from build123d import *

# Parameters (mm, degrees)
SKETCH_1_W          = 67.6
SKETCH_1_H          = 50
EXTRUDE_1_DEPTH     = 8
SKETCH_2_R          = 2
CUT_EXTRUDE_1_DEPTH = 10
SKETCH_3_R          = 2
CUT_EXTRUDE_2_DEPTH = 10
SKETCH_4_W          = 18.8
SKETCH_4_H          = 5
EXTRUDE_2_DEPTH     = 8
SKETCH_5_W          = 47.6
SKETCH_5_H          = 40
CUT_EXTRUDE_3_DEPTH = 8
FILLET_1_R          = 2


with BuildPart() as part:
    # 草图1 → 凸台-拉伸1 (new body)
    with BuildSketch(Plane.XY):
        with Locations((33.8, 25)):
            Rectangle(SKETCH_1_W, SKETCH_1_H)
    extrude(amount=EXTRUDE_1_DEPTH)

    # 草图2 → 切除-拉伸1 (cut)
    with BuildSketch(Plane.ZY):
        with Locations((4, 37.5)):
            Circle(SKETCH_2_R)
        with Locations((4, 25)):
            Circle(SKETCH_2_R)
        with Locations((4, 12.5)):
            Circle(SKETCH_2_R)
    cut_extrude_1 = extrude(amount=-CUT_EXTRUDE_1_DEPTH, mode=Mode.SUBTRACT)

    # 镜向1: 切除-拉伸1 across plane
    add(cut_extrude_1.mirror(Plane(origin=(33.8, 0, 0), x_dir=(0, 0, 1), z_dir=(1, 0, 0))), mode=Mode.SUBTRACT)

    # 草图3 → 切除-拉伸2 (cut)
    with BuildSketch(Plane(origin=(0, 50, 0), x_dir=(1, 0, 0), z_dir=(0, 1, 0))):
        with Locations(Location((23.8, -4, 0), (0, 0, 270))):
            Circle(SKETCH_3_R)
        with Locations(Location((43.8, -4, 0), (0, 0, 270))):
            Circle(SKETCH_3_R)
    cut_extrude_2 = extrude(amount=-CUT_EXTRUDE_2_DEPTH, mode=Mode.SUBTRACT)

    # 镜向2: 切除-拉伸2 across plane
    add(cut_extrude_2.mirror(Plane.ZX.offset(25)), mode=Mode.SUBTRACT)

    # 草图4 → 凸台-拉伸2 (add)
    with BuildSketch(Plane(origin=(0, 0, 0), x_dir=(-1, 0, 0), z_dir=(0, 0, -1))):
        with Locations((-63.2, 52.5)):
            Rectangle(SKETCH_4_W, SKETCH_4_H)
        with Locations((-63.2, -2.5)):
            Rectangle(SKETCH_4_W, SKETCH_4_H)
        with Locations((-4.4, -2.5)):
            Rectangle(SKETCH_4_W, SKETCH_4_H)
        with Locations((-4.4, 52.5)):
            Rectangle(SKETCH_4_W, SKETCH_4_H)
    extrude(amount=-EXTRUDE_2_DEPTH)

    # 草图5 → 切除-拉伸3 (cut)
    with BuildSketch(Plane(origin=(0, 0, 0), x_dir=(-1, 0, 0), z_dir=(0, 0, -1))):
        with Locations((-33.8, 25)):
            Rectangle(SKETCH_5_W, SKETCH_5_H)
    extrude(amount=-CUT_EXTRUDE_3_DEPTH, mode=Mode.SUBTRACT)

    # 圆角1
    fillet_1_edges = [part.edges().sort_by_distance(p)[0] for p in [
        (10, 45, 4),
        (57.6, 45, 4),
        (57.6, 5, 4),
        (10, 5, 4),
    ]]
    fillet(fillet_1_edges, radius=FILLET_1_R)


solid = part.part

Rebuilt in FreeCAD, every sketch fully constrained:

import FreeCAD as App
import Part
import Sketcher
Q = App.Units.Quantity


def edges_at(feature, points):
    """Names of the edges that pass closest to the given points."""
    edges = feature.Shape.Edges
    near = lambda p: min(range(len(edges)), key=lambda i: edges[i].distToShape(Part.Vertex(*p))[0])
    return sorted({f"Edge{near(p) + 1}" for p in points})

doc = App.newDocument("Part")
body = doc.addObject("PartDesign::Body", "Body")

sketch1 = doc.addObject("Sketcher::SketchObject", "Sketch")
body.addObject(sketch1)
sketch1.AttachmentSupport = (doc.XY_Plane, [""])
sketch1.MapMode = "FlatFace"
sketch1.addGeometry(Part.LineSegment(App.Vector(0, 50, 0), App.Vector(0, 0, 0)), False)
sketch1.addGeometry(Part.LineSegment(App.Vector(0, 0, 0), App.Vector(68, 0, 0)), False)
sketch1.addGeometry(Part.LineSegment(App.Vector(68, 0, 0), App.Vector(68, 50, 0)), False)
sketch1.addGeometry(Part.LineSegment(App.Vector(68, 50, 0), App.Vector(0, 50, 0)), False)
sketch1.addConstraint(Sketcher.Constraint("Coincident", 0, 2, 1, 1))
sketch1.addConstraint(Sketcher.Constraint("Coincident", 1, 2, 2, 1))
sketch1.addConstraint(Sketcher.Constraint("Coincident", 2, 2, 3, 1))
sketch1.addConstraint(Sketcher.Constraint("Coincident", 3, 2, 0, 1))
sketch1.addConstraint(Sketcher.Constraint("Vertical", 0))
sketch1.addConstraint(Sketcher.Constraint("Horizontal", 1))
sketch1.addConstraint(Sketcher.Constraint("Vertical", 2))
sketch1.addConstraint(Sketcher.Constraint("Horizontal", 3))
sketch1.addConstraint(Sketcher.Constraint("Coincident", 0, 2, -1, 1))
sketch1.addConstraint(Sketcher.Constraint("DistanceY", 0, 2, 0, 1, Q("50 mm")))
sketch1.addConstraint(Sketcher.Constraint("DistanceX", 1, 1, 1, 2, Q("67.6 mm")))
pad1 = doc.addObject("PartDesign::Pad", "Pad")
body.addObject(pad1)
pad1.Profile = sketch1
pad1.Length = 8

sketch2 = doc.addObject("Sketcher::SketchObject", "Sketch001")
body.addObject(sketch2)
sketch2.AttachmentSupport = (doc.YZ_Plane, [""])
sketch2.MapMode = "FlatFace"
sketch2.addGeometry(Part.Circle(App.Vector(37.5, 4, 0), App.Vector(0, 0, 1), 2), False)
sketch2.addGeometry(Part.Circle(App.Vector(25, 4, 0), App.Vector(0, 0, 1), 2), False)
sketch2.addGeometry(Part.Circle(App.Vector(12.5, 4, 0), App.Vector(0, 0, 1), 2), False)
sketch2.addConstraint(Sketcher.Constraint("Equal", 0, 1))
sketch2.addConstraint(Sketcher.Constraint("Equal", 1, 2))
sketch2.addConstraint(Sketcher.Constraint("Horizontal", 0, 3, 1, 3))
sketch2.addConstraint(Sketcher.Constraint("Horizontal", 1, 3, 2, 3))
sketch2.addConstraint(Sketcher.Constraint("Diameter", 0, Q("4 mm")))
sketch2.addConstraint(Sketcher.Constraint("DistanceY", -1, 1, 0, 3, Q("4 mm")))
sketch2.addConstraint(Sketcher.Constraint("DistanceX", -1, 1, 1, 3, Q("25 mm")))
sketch2.addConstraint(Sketcher.Constraint("DistanceX", 2, 3, 0, 3, Q("25 mm")))
sketch2.addConstraint(Sketcher.Constraint("DistanceX", -1, 1, 0, 3, Q("37.5 mm")))
pocket1 = doc.addObject("PartDesign::Pocket", "Pocket")
body.addObject(pocket1)
pocket1.Profile = sketch2
pocket1.Length = 10
pocket1.Reversed = True
doc.recompute()

datumplane = doc.addObject("PartDesign::Plane", "DatumPlane")
body.addObject(datumplane)
datumplane.AttachmentSupport = (doc.YZ_Plane, [""])
datumplane.MapMode = "FlatFace"
datumplane.AttachmentOffset = App.Placement(App.Vector(0, 0, 33.8), App.Rotation())
mirrored = doc.addObject("PartDesign::Mirrored", "Mirrored")
body.addObject(mirrored)
mirrored.Originals = [pocket1]
mirrored.MirrorPlane = (datumplane, [""])
body.Tip = mirrored

sketch3 = doc.addObject("Sketcher::SketchObject", "Sketch002")
body.addObject(sketch3)
sketch3.AttachmentSupport = (doc.XZ_Plane, [""])
sketch3.MapMode = "FlatFace"
sketch3.AttachmentOffset = App.Placement(App.Vector(0, 0, -50), App.Rotation())
sketch3.addGeometry(Part.Circle(App.Vector(23.8, 4, 0), App.Vector(0, 0, 1), 2), False)
sketch3.addGeometry(Part.Circle(App.Vector(43.8, 4, 0), App.Vector(0, 0, 1), 2), False)
sketch3.addConstraint(Sketcher.Constraint("Equal", 0, 1))
sketch3.addConstraint(Sketcher.Constraint("Horizontal", 0, 3, 1, 3))
sketch3.addConstraint(Sketcher.Constraint("Diameter", 0, Q("4 mm")))
sketch3.addConstraint(Sketcher.Constraint("DistanceY", -1, 1, 0, 3, Q("4 mm")))
sketch3.addConstraint(Sketcher.Constraint("DistanceX", 0, 3, 1, 3, Q("20 mm")))
sketch3.addConstraint(Sketcher.Constraint("DistanceX", -1, 1, 0, 3, Q("23.8 mm")))
pocket2 = doc.addObject("PartDesign::Pocket", "Pocket001")
body.addObject(pocket2)
pocket2.Profile = sketch3
pocket2.Length = 10
pocket2.Reversed = True
doc.recompute()

datumplane2 = doc.addObject("PartDesign::Plane", "DatumPlane001")
body.addObject(datumplane2)
datumplane2.AttachmentSupport = (doc.XZ_Plane, [""])
datumplane2.MapMode = "FlatFace"
datumplane2.AttachmentOffset = App.Placement(App.Vector(0, 0, -25), App.Rotation())
mirrored2 = doc.addObject("PartDesign::Mirrored", "Mirrored001")
body.addObject(mirrored2)
mirrored2.Originals = [pocket2]
mirrored2.MirrorPlane = (datumplane2, [""])
body.Tip = mirrored2

sketch4 = doc.addObject("Sketcher::SketchObject", "Sketch003")
body.addObject(sketch4)
sketch4.AttachmentSupport = (doc.XY_Plane, [""])
sketch4.MapMode = "FlatFace"
sketch4.addGeometry(Part.LineSegment(App.Vector(73, 55, 0), App.Vector(73, 50, 0)), False)
sketch4.addGeometry(Part.LineSegment(App.Vector(73, 50, 0), App.Vector(54, 50, 0)), False)
sketch4.addGeometry(Part.LineSegment(App.Vector(54, 50, 0), App.Vector(54, 55, 0)), False)
sketch4.addGeometry(Part.LineSegment(App.Vector(54, 55, 0), App.Vector(73, 55, 0)), False)
sketch4.addGeometry(Part.LineSegment(App.Vector(73, 0, 0), App.Vector(73, -5, 0)), False)
sketch4.addGeometry(Part.LineSegment(App.Vector(73, -5, 0), App.Vector(54, -5, 0)), False)
sketch4.addGeometry(Part.LineSegment(App.Vector(54, -5, 0), App.Vector(54, 0, 0)), False)
sketch4.addGeometry(Part.LineSegment(App.Vector(54, 0, 0), App.Vector(73, 0, 0)), False)
sketch4.addGeometry(Part.LineSegment(App.Vector(14, 0, 0), App.Vector(14, -5, 0)), False)
sketch4.addGeometry(Part.LineSegment(App.Vector(14, -5, 0), App.Vector(-5, -5, 0)), False)
sketch4.addGeometry(Part.LineSegment(App.Vector(-5, -5, 0), App.Vector(-5, 0, 0)), False)
sketch4.addGeometry(Part.LineSegment(App.Vector(-5, 0, 0), App.Vector(14, 0, 0)), False)
sketch4.addGeometry(Part.LineSegment(App.Vector(14, 55, 0), App.Vector(14, 50, 0)), False)
sketch4.addGeometry(Part.LineSegment(App.Vector(14, 50, 0), App.Vector(-5, 50, 0)), False)
sketch4.addGeometry(Part.LineSegment(App.Vector(-5, 50, 0), App.Vector(-5, 55, 0)), False)
sketch4.addGeometry(Part.LineSegment(App.Vector(-5, 55, 0), App.Vector(14, 55, 0)), False)
sketch4.addConstraint(Sketcher.Constraint("Coincident", 0, 2, 1, 1))
sketch4.addConstraint(Sketcher.Constraint("Coincident", 1, 2, 2, 1))
sketch4.addConstraint(Sketcher.Constraint("Coincident", 2, 2, 3, 1))
sketch4.addConstraint(Sketcher.Constraint("Coincident", 3, 2, 0, 1))
sketch4.addConstraint(Sketcher.Constraint("Coincident", 4, 2, 5, 1))
sketch4.addConstraint(Sketcher.Constraint("Coincident", 5, 2, 6, 1))
sketch4.addConstraint(Sketcher.Constraint("Coincident", 6, 2, 7, 1))
sketch4.addConstraint(Sketcher.Constraint("Coincident", 7, 2, 4, 1))
sketch4.addConstraint(Sketcher.Constraint("Coincident", 8, 2, 9, 1))
sketch4.addConstraint(Sketcher.Constraint("Coincident", 9, 2, 10, 1))
sketch4.addConstraint(Sketcher.Constraint("Coincident", 10, 2, 11, 1))
sketch4.addConstraint(Sketcher.Constraint("Coincident", 11, 2, 8, 1))
sketch4.addConstraint(Sketcher.Constraint("Coincident", 12, 2, 13, 1))
sketch4.addConstraint(Sketcher.Constraint("Coincident", 13, 2, 14, 1))
sketch4.addConstraint(Sketcher.Constraint("Coincident", 14, 2, 15, 1))
sketch4.addConstraint(Sketcher.Constraint("Coincident", 15, 2, 12, 1))
sketch4.addConstraint(Sketcher.Constraint("Vertical", 0))
sketch4.addConstraint(Sketcher.Constraint("Horizontal", 1))
sketch4.addConstraint(Sketcher.Constraint("Vertical", 2))
sketch4.addConstraint(Sketcher.Constraint("Horizontal", 3))
sketch4.addConstraint(Sketcher.Constraint("Vertical", 4))
sketch4.addConstraint(Sketcher.Constraint("Horizontal", 5))
sketch4.addConstraint(Sketcher.Constraint("Vertical", 6))
sketch4.addConstraint(Sketcher.Constraint("Horizontal", 7))
sketch4.addConstraint(Sketcher.Constraint("Vertical", 8))
sketch4.addConstraint(Sketcher.Constraint("Horizontal", 9))
sketch4.addConstraint(Sketcher.Constraint("Vertical", 10))
sketch4.addConstraint(Sketcher.Constraint("Horizontal", 11))
sketch4.addConstraint(Sketcher.Constraint("Vertical", 12))
sketch4.addConstraint(Sketcher.Constraint("Horizontal", 13))
sketch4.addConstraint(Sketcher.Constraint("Vertical", 14))
sketch4.addConstraint(Sketcher.Constraint("Horizontal", 15))
sketch4.addConstraint(Sketcher.Constraint("PointOnObject", 6, 2, -1))
sketch4.addConstraint(Sketcher.Constraint("PointOnObject", 10, 2, -1))
sketch4.addConstraint(Sketcher.Constraint("Horizontal", 5, 2, 8, 2))
sketch4.addConstraint(Sketcher.Constraint("Horizontal", 1, 2, 12, 2))
sketch4.addConstraint(Sketcher.Constraint("Horizontal", 3, 2, 14, 2))
sketch4.addConstraint(Sketcher.Constraint("Vertical", 3, 2, 4, 2))
sketch4.addConstraint(Sketcher.Constraint("Vertical", 2, 2, 5, 2))
sketch4.addConstraint(Sketcher.Constraint("Vertical", 11, 2, 12, 2))
sketch4.addConstraint(Sketcher.Constraint("Vertical", 10, 2, 13, 2))
sketch4.addConstraint(Sketcher.Constraint("Equal", 7, 9))
sketch4.addConstraint(Sketcher.Constraint("Equal", 2, 4))
sketch4.addConstraint(Sketcher.Constraint("DistanceY", 0, 2, 0, 1, Q("5 mm")))
sketch4.addConstraint(Sketcher.Constraint("DistanceX", 1, 2, 1, 1, Q("18.8 mm")))
sketch4.addConstraint(Sketcher.Constraint("DistanceY", -1, 1, 0, 2, Q("50 mm")))
sketch4.addConstraint(Sketcher.Constraint("DistanceX", 9, 2, -1, 1, Q("5 mm")))
sketch4.addConstraint(Sketcher.Constraint("DistanceX", 8, 2, 5, 2, Q("40 mm")))
pad2 = doc.addObject("PartDesign::Pad", "Pad001")
body.addObject(pad2)
pad2.Profile = sketch4
pad2.Length = 8

sketch5 = doc.addObject("Sketcher::SketchObject", "Sketch004")
body.addObject(sketch5)
sketch5.AttachmentSupport = (doc.XY_Plane, [""])
sketch5.MapMode = "FlatFace"
sketch5.addGeometry(Part.LineSegment(App.Vector(58, 45, 0), App.Vector(58, 5, 0)), False)
sketch5.addGeometry(Part.LineSegment(App.Vector(58, 5, 0), App.Vector(10, 5, 0)), False)
sketch5.addGeometry(Part.LineSegment(App.Vector(10, 5, 0), App.Vector(10, 45, 0)), False)
sketch5.addGeometry(Part.LineSegment(App.Vector(10, 45, 0), App.Vector(58, 45, 0)), False)
sketch5.addConstraint(Sketcher.Constraint("Coincident", 0, 2, 1, 1))
sketch5.addConstraint(Sketcher.Constraint("Coincident", 1, 2, 2, 1))
sketch5.addConstraint(Sketcher.Constraint("Coincident", 2, 2, 3, 1))
sketch5.addConstraint(Sketcher.Constraint("Coincident", 3, 2, 0, 1))
sketch5.addConstraint(Sketcher.Constraint("Vertical", 0))
sketch5.addConstraint(Sketcher.Constraint("Horizontal", 1))
sketch5.addConstraint(Sketcher.Constraint("Vertical", 2))
sketch5.addConstraint(Sketcher.Constraint("Horizontal", 3))
sketch5.addConstraint(Sketcher.Constraint("DistanceY", 0, 2, 0, 1, Q("40 mm")))
sketch5.addConstraint(Sketcher.Constraint("DistanceX", 1, 2, 1, 1, Q("47.6 mm")))
sketch5.addConstraint(Sketcher.Constraint("DistanceY", -1, 1, 0, 2, Q("5 mm")))
sketch5.addConstraint(Sketcher.Constraint("DistanceX", -1, 1, 1, 2, Q("10 mm")))
pocket3 = doc.addObject("PartDesign::Pocket", "Pocket002")
body.addObject(pocket3)
pocket3.Profile = sketch5
pocket3.Length = 8
pocket3.Reversed = True
doc.recompute()

fillet = doc.addObject("PartDesign::Fillet", "Fillet")
body.addObject(fillet)
fillet.Base = (pocket3, edges_at(pocket3, [
    (10, 45, 4),
    (57.6, 45, 4),
    (57.6, 5, 4),
    (10, 5, 4),
]))
fillet.Radius = 2

doc.recompute()
